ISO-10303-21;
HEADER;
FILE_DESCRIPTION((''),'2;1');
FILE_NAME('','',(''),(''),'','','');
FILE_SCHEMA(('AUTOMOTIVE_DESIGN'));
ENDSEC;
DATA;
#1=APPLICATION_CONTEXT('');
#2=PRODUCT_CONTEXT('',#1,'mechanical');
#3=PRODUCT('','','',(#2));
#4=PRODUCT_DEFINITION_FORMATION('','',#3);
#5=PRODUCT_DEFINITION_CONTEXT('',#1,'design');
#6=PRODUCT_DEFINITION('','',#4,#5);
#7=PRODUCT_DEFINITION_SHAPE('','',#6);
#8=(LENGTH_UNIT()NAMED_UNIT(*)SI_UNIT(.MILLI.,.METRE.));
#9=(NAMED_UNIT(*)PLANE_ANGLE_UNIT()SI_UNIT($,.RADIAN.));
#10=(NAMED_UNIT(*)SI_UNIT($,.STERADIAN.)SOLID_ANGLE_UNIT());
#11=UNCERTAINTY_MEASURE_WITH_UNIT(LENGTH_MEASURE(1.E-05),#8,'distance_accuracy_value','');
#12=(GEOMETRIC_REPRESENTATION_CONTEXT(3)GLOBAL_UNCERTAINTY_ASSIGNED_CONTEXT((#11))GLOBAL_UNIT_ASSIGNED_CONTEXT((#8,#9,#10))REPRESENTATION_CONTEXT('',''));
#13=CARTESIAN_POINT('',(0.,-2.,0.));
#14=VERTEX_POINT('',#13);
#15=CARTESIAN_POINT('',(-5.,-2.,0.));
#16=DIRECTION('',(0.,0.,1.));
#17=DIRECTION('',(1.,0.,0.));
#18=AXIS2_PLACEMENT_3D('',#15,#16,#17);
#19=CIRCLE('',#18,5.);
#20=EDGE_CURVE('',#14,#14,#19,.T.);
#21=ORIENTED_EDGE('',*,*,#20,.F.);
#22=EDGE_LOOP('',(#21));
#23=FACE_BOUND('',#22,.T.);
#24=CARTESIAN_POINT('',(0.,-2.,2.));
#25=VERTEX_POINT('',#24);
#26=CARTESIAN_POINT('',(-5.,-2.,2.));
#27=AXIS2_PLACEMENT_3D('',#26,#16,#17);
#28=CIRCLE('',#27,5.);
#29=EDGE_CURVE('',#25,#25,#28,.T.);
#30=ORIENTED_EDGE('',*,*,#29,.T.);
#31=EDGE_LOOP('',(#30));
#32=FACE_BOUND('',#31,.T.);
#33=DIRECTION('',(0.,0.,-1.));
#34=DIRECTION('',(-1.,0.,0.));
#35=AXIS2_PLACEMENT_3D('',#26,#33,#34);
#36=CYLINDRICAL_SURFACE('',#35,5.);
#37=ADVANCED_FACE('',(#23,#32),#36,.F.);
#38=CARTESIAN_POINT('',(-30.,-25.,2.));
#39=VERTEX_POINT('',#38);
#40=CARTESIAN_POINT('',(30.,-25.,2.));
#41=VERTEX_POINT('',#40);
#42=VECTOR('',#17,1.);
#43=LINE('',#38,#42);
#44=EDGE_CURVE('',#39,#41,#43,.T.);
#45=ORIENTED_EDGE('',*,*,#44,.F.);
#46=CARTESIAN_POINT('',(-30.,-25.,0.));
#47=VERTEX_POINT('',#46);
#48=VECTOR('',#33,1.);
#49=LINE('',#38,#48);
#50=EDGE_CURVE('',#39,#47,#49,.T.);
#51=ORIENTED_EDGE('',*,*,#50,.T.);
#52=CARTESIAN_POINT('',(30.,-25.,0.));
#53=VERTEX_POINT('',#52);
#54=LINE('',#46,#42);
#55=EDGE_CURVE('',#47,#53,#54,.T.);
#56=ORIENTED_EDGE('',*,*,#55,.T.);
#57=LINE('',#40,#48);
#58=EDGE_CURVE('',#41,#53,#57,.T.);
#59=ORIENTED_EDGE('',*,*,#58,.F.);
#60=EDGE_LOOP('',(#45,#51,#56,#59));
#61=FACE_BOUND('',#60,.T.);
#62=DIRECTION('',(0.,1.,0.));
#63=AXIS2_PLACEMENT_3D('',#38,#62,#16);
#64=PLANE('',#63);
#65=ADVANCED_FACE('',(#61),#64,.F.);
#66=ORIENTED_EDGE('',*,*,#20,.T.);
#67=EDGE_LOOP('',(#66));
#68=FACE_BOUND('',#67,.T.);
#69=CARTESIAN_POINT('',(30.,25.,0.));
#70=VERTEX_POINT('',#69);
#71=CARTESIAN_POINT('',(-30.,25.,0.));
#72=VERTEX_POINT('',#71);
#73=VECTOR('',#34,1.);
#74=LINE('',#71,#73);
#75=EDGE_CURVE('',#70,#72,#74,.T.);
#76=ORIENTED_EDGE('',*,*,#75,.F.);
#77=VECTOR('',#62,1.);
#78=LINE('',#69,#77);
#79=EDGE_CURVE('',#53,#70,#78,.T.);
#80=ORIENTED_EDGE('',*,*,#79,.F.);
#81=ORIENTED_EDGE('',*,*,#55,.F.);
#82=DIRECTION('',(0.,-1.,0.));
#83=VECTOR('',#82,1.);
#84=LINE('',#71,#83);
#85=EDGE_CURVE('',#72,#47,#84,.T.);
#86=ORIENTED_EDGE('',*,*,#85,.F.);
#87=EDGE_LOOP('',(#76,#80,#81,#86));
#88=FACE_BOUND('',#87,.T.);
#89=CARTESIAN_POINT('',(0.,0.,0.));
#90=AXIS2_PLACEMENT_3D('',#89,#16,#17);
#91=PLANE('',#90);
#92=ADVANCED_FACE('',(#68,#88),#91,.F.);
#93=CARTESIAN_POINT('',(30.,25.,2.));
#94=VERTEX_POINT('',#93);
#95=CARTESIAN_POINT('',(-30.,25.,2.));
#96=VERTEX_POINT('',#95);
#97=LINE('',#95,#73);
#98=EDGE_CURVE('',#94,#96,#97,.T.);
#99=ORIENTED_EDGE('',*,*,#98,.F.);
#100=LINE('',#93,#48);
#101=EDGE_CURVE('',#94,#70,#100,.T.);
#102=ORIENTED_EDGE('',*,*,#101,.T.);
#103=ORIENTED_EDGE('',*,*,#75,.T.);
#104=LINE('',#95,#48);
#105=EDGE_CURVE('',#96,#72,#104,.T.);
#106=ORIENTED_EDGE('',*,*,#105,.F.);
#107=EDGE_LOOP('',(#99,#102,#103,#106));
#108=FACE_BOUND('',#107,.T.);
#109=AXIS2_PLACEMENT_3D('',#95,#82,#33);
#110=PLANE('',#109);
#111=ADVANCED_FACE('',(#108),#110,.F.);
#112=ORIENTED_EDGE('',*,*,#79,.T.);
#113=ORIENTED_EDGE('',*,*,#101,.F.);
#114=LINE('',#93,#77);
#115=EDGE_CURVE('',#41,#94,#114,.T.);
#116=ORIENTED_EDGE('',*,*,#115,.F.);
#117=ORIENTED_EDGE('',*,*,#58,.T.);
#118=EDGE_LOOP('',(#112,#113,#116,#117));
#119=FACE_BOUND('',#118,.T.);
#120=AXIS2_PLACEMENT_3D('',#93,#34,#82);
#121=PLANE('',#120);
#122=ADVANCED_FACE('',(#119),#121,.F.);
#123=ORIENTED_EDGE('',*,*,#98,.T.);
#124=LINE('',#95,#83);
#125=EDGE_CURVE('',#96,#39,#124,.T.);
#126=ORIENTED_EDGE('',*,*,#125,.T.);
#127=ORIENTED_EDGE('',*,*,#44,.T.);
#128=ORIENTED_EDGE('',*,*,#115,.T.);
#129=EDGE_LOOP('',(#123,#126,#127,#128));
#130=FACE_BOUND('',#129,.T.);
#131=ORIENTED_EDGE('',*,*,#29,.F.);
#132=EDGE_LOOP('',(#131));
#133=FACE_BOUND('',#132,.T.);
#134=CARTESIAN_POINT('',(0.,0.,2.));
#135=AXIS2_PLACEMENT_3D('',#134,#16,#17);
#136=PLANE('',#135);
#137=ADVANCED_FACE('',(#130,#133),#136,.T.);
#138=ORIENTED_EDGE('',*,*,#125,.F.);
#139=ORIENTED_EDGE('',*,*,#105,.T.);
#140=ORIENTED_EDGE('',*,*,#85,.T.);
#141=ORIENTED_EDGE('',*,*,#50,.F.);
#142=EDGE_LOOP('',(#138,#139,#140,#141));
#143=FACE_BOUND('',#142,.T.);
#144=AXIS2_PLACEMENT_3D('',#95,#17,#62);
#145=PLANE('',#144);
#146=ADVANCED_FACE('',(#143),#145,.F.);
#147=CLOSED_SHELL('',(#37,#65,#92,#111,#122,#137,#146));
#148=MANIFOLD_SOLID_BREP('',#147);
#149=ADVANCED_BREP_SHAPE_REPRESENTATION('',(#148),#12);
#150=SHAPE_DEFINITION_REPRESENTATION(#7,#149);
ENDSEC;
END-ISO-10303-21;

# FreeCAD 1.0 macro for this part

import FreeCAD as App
import Part
import Sketcher
from FreeCAD import Vector
Q = App.Units.Quantity


def add_polygon(sketch, points):
    """Adds a closed chain of lines whose ends are joined by coincident constraints."""
    first, n = sketch.GeometryCount, len(points)
    for a, b in zip(points, points[1:] + points[:1]):
        sketch.addGeometry(Part.LineSegment(App.Vector(*a, 0), App.Vector(*b, 0)), False)
    for i in range(n):
        sketch.addConstraint(Sketcher.Constraint("Coincident", first + i, 2, first + (i + 1) % n, 1))

doc = App.newDocument("Part")
body = doc.addObject("PartDesign::Body", "Body")

sketch1 = doc.addObject("Sketcher::SketchObject", "Sketch")
body.addObject(sketch1)
sketch1.AttachmentSupport = (doc.XY_Plane, [""])
sketch1.MapMode = "FlatFace"
add_polygon(sketch1, [(-30, 25), (-30, -25), (30, -25), (30, 25)])
sketch1.addGeometry(Part.Circle(Vector(-5, -2, 0), Vector(0, 0, 1), 5), False)
sketch1.addConstraint(Sketcher.Constraint("Vertical", 0))
sketch1.addConstraint(Sketcher.Constraint("Horizontal", 1))
sketch1.addConstraint(Sketcher.Constraint("Vertical", 2))
sketch1.addConstraint(Sketcher.Constraint("Horizontal", 3))
sketch1.addConstraint(Sketcher.Constraint("Symmetric", 0, 2, 2, 2, -1, 1))
sketch1.addConstraint(Sketcher.Constraint("Diameter", 4, Q("10 mm")))
sketch1.addConstraint(Sketcher.Constraint("DistanceX", 1, 1, 1, 2, Q("60 mm")))
sketch1.addConstraint(Sketcher.Constraint("DistanceY", 0, 2, 0, 1, Q("50 mm")))
sketch1.addConstraint(Sketcher.Constraint("DistanceX", 4, 3, -1, 1, Q("5 mm")))
sketch1.addConstraint(Sketcher.Constraint("DistanceY", 4, 3, -1, 1, Q("2 mm")))
pad1 = doc.addObject("PartDesign::Pad", "Pad")
body.addObject(pad1)
pad1.Profile = sketch1
pad1.Length = 2

doc.recompute()
